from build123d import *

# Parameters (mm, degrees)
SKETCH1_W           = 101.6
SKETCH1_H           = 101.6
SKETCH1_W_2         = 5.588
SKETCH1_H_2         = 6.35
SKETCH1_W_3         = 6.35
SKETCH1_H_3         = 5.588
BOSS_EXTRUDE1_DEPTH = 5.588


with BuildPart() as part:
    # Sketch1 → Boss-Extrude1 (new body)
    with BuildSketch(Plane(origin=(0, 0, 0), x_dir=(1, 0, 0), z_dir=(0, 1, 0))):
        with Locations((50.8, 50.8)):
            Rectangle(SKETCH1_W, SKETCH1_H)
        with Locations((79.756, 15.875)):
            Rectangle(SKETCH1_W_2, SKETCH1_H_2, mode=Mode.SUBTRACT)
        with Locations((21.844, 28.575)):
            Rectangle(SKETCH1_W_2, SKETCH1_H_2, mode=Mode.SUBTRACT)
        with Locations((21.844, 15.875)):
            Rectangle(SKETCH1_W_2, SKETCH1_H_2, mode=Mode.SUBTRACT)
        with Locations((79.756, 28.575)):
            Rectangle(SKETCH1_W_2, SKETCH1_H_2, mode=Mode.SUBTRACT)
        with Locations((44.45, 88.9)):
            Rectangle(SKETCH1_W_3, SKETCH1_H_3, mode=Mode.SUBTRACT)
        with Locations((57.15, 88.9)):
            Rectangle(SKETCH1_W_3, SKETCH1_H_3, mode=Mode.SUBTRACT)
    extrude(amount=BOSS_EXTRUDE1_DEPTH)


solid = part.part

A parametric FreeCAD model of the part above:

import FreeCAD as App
import Part
import Sketcher

V = App.Vector
Q = App.Units.Quantity

doc = App.newDocument("Part")
body = doc.addObject("PartDesign::Body", "Body")

# Sketch on XZ plane
sketch1 = body.newObject("Sketcher::SketchObject", "Sketch")
sketch1.AttachmentSupport = (doc.getObject("XZ_Plane"), [""])
sketch1.MapMode = "FlatFace"
sketch1.addGeometry([
    Part.LineSegment(V(0, -102, 0), V(0, 0, 0)),  # 0
    Part.LineSegment(V(0, 0, 0), V(102, 0, 0)),  # 1
    Part.LineSegment(V(102, 0, 0), V(102, -102, 0)),  # 2
    Part.LineSegment(V(102, -102, 0), V(0, -102, 0)),  # 3
    Part.LineSegment(V(25, -13, 0), V(19, -13, 0)),  # 4
    Part.LineSegment(V(19, -13, 0), V(19, -19, 0)),  # 5
    Part.LineSegment(V(19, -19, 0), V(25, -19, 0)),  # 6
    Part.LineSegment(V(25, -19, 0), V(25, -13, 0)),  # 7
    Part.LineSegment(V(25, -25, 0), V(19, -25, 0)),  # 8
    Part.LineSegment(V(19, -25, 0), V(19, -32, 0)),  # 9
    Part.LineSegment(V(19, -32, 0), V(25, -32, 0)),  # 10
    Part.LineSegment(V(25, -32, 0), V(25, -25, 0)),  # 11
    Part.LineSegment(V(83, -13, 0), V(77, -13, 0)),  # 12
    Part.LineSegment(V(77, -13, 0), V(77, -19, 0)),  # 13
    Part.LineSegment(V(77, -19, 0), V(83, -19, 0)),  # 14
    Part.LineSegment(V(83, -19, 0), V(83, -13, 0)),  # 15
    Part.LineSegment(V(83, -25, 0), V(77, -25, 0)),  # 16
    Part.LineSegment(V(77, -25, 0), V(77, -32, 0)),  # 17
    Part.LineSegment(V(77, -32, 0), V(83, -32, 0)),  # 18
    Part.LineSegment(V(83, -32, 0), V(83, -25, 0)),  # 19
    Part.LineSegment(V(48, -86, 0), V(41, -86, 0)),  # 20
    Part.LineSegment(V(41, -86, 0), V(41, -92, 0)),  # 21
    Part.LineSegment(V(41, -92, 0), V(48, -92, 0)),  # 22
    Part.LineSegment(V(48, -92, 0), V(48, -86, 0)),  # 23
    Part.LineSegment(V(60, -86, 0), V(54, -86, 0)),  # 24
    Part.LineSegment(V(54, -86, 0), V(54, -92, 0)),  # 25
    Part.LineSegment(V(54, -92, 0), V(60, -92, 0)),  # 26
    Part.LineSegment(V(60, -92, 0), V(60, -86, 0)),  # 27
], False)
sketch1.addConstraint([
    Sketcher.Constraint("Coincident", 0, 2, 1, 1),
    Sketcher.Constraint("Coincident", 1, 2, 2, 1),
    Sketcher.Constraint("Coincident", 2, 2, 3, 1),
    Sketcher.Constraint("Coincident", 3, 2, 0, 1),
    Sketcher.Constraint("Coincident", 4, 2, 5, 1),
    Sketcher.Constraint("Coincident", 5, 2, 6, 1),
    Sketcher.Constraint("Coincident", 6, 2, 7, 1),
    Sketcher.Constraint("Coincident", 7, 2, 4, 1),
    Sketcher.Constraint("Coincident", 8, 2, 9, 1),
    Sketcher.Constraint("Coincident", 9, 2, 10, 1),
    Sketcher.Constraint("Coincident", 10, 2, 11, 1),
    Sketcher.Constraint("Coincident", 11, 2, 8, 1),
    Sketcher.Constraint("Coincident", 12, 2, 13, 1),
    Sketcher.Constraint("Coincident", 13, 2, 14, 1),
    Sketcher.Constraint("Coincident", 14, 2, 15, 1),
    Sketcher.Constraint("Coincident", 15, 2, 12, 1),
    Sketcher.Constraint("Coincident", 16, 2, 17, 1),
    Sketcher.Constraint("Coincident", 17, 2, 18, 1),
    Sketcher.Constraint("Coincident", 18, 2, 19, 1),
    Sketcher.Constraint("Coincident", 19, 2, 16, 1),
    Sketcher.Constraint("Coincident", 20, 2, 21, 1),
    Sketcher.Constraint("Coincident", 21, 2, 22, 1),
    Sketcher.Constraint("Coincident", 22, 2, 23, 1),
    Sketcher.Constraint("Coincident", 23, 2, 20, 1),
    Sketcher.Constraint("Coincident", 24, 2, 25, 1),
    Sketcher.Constraint("Coincident", 25, 2, 26, 1),
    Sketcher.Constraint("Coincident", 26, 2, 27, 1),
    Sketcher.Constraint("Coincident", 27, 2, 24, 1),
    Sketcher.Constraint("Vertical", 0),
    Sketcher.Constraint("Horizontal", 1),
    Sketcher.Constraint("Vertical", 2),
    Sketcher.Constraint("Horizontal", 3),
    Sketcher.Constraint("Horizontal", 4),
    Sketcher.Constraint("Vertical", 5),
    Sketcher.Constraint("Horizontal", 6),
    Sketcher.Constraint("Vertical", 7),
    Sketcher.Constraint("Horizontal", 8),
    Sketcher.Constraint("Vertical", 9),
    Sketcher.Constraint("Horizontal", 10),
    Sketcher.Constraint("Vertical", 11),
    Sketcher.Constraint("Horizontal", 12),
    Sketcher.Constraint("Vertical", 13),
    Sketcher.Constraint("Horizontal", 14),
    Sketcher.Constraint("Vertical", 15),
    Sketcher.Constraint("Horizontal", 16),
    Sketcher.Constraint("Vertical", 17),
    Sketcher.Constraint("Horizontal", 18),
    Sketcher.Constraint("Vertical", 19),
    Sketcher.Constraint("Horizontal", 20),
    Sketcher.Constraint("Vertical", 21),
    Sketcher.Constraint("Horizontal", 22),
    Sketcher.Constraint("Vertical", 23),
    Sketcher.Constraint("Horizontal", 24),
    Sketcher.Constraint("Vertical", 25),
    Sketcher.Constraint("Horizontal", 26),
    Sketcher.Constraint("Vertical", 27),
    Sketcher.Constraint("Coincident", 0, 2, -1, 1),
    Sketcher.Constraint("Horizontal", 7, 2, 12, 2),
    Sketcher.Constraint("Horizontal", 6, 2, 13, 2),
    Sketcher.Constraint("Horizontal", 11, 2, 16, 2),
    Sketcher.Constraint("Horizontal", 10, 2, 17, 2),
    Sketcher.Constraint("Horizontal", 23, 2, 24, 2),
    Sketcher.Constraint("Horizontal", 22, 2, 25, 2),
    Sketcher.Constraint("Vertical", 5, 2, 8, 2),
    Sketcher.Constraint("Vertical", 7, 2, 10, 2),
    Sketcher.Constraint("Vertical", 13, 2, 16, 2),
    Sketcher.Constraint("Vertical", 15, 2, 18, 2),
    Sketcher.Constraint("Equal", 10, 12),
    Sketcher.Constraint("Equal", 22, 24),
    Sketcher.Constraint("Equal", 3, 0),
    Sketcher.Constraint("Equal", 26, 5),
    Sketcher.Constraint("Equal", 7, 9),
    Sketcher.Constraint("Equal", 18, 21),
    Sketcher.Constraint("DistanceX", 1, 1, 1, 2, Q("4 in")),
    Sketcher.Constraint("DistanceY", 8, 2, -1, 1, Q("1 in")),
    Sketcher.Constraint("DistanceX", 4, 2, 4, 1, Q("0.22 in")),
    Sketcher.Constraint("DistanceX", 20, 2, 20, 1, Q("0.25 in")),
    Sketcher.Constraint("DistanceY", 4, 2, -1, 1, Q("0.5 in")),
    Sketcher.Constraint("DistanceX", 20, 2, 24, 2, Q("0.5 in")),
    Sketcher.Constraint("DistanceX", -1, 1, 4, 2, Q("0.75 in")),
    Sketcher.Constraint("DistanceX", -1, 1, 12, 2, Q("3.03 in")),
    Sketcher.Constraint("DistanceY", 20, 2, -1, 1, Q("3.39 in")),
    Sketcher.Constraint("DistanceX", -1, 1, 20, 2, Q("1.625 in")),
])
pad1 = body.newObject("PartDesign::Pad", "Pad")
pad1.Profile = sketch1
pad1.Length = Q("0.22 in")
pad1.Reversed = True

doc.recompute()
